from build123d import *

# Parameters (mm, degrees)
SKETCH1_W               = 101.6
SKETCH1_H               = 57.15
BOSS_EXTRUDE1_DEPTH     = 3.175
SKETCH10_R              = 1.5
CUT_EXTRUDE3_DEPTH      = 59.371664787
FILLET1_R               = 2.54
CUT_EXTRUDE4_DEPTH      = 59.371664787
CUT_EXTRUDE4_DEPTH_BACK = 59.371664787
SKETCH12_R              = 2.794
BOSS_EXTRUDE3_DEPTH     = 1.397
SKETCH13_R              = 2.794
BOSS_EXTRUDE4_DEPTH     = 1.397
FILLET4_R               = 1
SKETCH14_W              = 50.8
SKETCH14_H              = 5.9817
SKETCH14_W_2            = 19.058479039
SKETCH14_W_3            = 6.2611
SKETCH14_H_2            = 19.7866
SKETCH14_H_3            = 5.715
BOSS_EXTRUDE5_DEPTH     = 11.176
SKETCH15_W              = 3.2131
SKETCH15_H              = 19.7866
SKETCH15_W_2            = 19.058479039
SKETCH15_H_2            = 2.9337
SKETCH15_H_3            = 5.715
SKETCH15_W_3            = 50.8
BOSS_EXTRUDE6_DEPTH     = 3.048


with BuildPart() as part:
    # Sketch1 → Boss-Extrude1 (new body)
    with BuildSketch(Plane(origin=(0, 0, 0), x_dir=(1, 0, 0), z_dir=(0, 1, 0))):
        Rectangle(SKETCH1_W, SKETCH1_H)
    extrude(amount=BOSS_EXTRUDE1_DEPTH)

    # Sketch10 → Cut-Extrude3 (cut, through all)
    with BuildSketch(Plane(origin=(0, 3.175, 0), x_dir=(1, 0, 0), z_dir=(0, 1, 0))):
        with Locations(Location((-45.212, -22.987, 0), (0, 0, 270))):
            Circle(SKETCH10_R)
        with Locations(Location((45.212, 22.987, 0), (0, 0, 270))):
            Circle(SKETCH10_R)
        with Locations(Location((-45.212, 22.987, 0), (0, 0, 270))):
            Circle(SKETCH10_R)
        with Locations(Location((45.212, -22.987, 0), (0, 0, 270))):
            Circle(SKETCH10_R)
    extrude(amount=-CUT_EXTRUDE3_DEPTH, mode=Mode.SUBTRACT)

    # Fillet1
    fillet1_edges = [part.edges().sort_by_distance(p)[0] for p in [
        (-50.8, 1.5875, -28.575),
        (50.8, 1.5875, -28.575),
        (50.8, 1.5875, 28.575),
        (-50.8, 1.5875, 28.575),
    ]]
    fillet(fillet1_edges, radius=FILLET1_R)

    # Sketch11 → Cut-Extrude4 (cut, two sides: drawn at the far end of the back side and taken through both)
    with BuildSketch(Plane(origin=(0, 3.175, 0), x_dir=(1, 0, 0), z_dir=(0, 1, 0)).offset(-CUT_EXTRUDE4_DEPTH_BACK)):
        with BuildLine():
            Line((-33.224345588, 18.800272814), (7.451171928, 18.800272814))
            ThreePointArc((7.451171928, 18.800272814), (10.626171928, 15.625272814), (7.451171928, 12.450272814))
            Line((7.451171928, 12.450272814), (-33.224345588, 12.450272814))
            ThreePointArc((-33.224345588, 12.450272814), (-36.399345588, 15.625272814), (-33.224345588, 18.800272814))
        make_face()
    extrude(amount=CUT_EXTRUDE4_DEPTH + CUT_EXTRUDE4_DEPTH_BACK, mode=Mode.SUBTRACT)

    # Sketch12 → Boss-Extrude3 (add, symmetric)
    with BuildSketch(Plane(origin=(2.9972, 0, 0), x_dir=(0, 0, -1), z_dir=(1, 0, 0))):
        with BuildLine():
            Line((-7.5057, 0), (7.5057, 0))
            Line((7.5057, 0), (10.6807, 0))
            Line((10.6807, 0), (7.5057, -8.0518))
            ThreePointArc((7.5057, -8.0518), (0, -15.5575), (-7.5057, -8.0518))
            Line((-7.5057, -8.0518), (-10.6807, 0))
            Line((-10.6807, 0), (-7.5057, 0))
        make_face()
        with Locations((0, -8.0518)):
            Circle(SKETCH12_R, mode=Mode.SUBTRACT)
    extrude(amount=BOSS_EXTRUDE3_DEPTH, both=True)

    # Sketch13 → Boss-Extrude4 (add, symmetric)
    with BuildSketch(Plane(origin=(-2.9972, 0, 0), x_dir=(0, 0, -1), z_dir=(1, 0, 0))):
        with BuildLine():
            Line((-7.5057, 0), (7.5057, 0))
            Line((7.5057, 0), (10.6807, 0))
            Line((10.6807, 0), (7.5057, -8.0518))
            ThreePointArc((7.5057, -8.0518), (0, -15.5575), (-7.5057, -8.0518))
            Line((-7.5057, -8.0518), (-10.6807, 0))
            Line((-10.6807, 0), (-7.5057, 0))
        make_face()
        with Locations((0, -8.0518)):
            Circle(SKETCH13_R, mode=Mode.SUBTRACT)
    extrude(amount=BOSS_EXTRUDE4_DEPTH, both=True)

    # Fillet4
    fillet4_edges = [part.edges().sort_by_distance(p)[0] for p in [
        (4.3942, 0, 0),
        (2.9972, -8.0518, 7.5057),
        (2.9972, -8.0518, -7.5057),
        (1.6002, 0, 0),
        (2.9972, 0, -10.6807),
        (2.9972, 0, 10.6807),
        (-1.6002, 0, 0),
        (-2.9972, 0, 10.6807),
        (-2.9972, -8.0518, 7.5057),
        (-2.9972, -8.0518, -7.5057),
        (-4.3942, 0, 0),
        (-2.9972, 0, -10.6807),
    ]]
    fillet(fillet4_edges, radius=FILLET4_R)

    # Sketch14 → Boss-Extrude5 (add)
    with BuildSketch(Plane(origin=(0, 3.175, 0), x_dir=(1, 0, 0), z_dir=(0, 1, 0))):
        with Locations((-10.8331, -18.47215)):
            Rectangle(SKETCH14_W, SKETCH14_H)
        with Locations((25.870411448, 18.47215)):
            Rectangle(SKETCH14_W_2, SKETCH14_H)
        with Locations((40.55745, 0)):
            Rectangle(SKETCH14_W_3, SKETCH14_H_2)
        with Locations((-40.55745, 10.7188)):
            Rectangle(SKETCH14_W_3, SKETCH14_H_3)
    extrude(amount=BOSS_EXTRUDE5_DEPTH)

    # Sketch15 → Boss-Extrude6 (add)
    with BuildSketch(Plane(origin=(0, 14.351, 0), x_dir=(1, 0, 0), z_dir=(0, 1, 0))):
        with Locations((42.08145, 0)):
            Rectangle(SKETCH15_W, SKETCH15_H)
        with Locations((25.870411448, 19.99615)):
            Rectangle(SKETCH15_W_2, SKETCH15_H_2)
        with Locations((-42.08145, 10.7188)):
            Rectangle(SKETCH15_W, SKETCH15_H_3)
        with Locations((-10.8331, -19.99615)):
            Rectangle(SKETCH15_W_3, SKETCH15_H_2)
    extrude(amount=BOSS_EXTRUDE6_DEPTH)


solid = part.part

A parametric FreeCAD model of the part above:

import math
import FreeCAD as App
import Part
import Sketcher

V = App.Vector
Q = App.Units.Quantity


def edges_at(feature, points):
    """Names of the edges that pass closest to the given points."""
    edges = feature.Shape.Edges
    near = lambda p: min(range(len(edges)), key=lambda i: edges[i].distToShape(Part.Vertex(*p))[0])
    return sorted({f"Edge{near(p) + 1}" for p in points})


def add_polygon(sketch, points):
    """Adds a closed chain of lines whose ends are joined by coincident constraints."""
    first, n = sketch.GeometryCount, len(points)
    for a, b in zip(points, points[1:] + points[:1]):
        sketch.addGeometry(Part.LineSegment(App.Vector(*a, 0), App.Vector(*b, 0)), False)
    for i in range(n):
        sketch.addConstraint(Sketcher.Constraint("Coincident", first + i, 2, first + (i + 1) % n, 1))

doc = App.newDocument("Part")
body = doc.addObject("PartDesign::Body", "Body")

# Sketch on XZ plane
sketch1 = body.newObject("Sketcher::SketchObject", "Sketch")
sketch1.AttachmentSupport = (doc.getObject("XZ_Plane"), [""])
sketch1.MapMode = "FlatFace"
add_polygon(sketch1, [(-51, -29), (-51, 29), (51, 29), (51, -29)])  # lines 0-3
sketch1.addConstraint([
    Sketcher.Constraint("Vertical", 0),
    Sketcher.Constraint("Horizontal", 1),
    Sketcher.Constraint("Vertical", 2),
    Sketcher.Constraint("Horizontal", 3),
    Sketcher.Constraint("Symmetric", 0, 2, 2, 2, -1, 1),
    Sketcher.Constraint("DistanceX", 1, 1, 1, 2, Q("4 in")),
    Sketcher.Constraint("DistanceY", 0, 1, 0, 2, Q("2.25 in")),
])
pad1 = body.newObject("PartDesign::Pad", "Pad")
pad1.Profile = sketch1
pad1.Length = Q("0.125 in")
pad1.Reversed = True

# Sketch on XZ plane
sketch2 = body.newObject("Sketcher::SketchObject", "Sketch001")
sketch2.AttachmentSupport = (doc.getObject("XZ_Plane"), [""])
sketch2.MapMode = "FlatFace"
sketch2.AttachmentOffset = App.Placement(V(0, 0, -0.125 * 25.4), App.Rotation())
sketch2.addGeometry([
    Part.Circle(V(-45.2, 23, 0), V(0, 0, 1), 1.5),
    Part.Circle(V(45.2, -23, 0), V(0, 0, 1), 1.5),
    Part.Circle(V(-45.2, -23, 0), V(0, 0, 1), 1.5),
    Part.Circle(V(45.2, 23, 0), V(0, 0, 1), 1.5),
], False)
sketch2.addConstraint([
    Sketcher.Constraint("Equal", 0, 1),
    Sketcher.Constraint("Equal", 1, 2),
    Sketcher.Constraint("Equal", 2, 3),
    Sketcher.Constraint("Symmetric", 0, 3, 1, 3, -1, 1),
    Sketcher.Constraint("Symmetric", 2, 3, 3, 3, -1, 1),
    Sketcher.Constraint("Symmetric", 1, 3, 2, 3, -2),
    Sketcher.Constraint("Diameter", 0, 3.0),
    Sketcher.Constraint("DistanceX", 0, 3, -1, 1, Q("1.78 in")),
    Sketcher.Constraint("DistanceY", 1, 3, 0, 3, Q("1.81 in")),
])
pocket1 = body.newObject("PartDesign::Pocket", "Pocket")
pocket1.Profile = sketch2
pocket1.Type = "ThroughAll"
pocket1.Reversed = True
doc.recompute()

fillet = body.newObject("PartDesign::Fillet", "Fillet")
fillet.Base = (pocket1, edges_at(pocket1, [
    (-50.8, 1.587, -28.575),
    (50.8, 1.587, -28.575),
    (50.8, 1.587, 28.575),
    (-50.8, 1.587, 28.575),
]))
fillet.Radius = Q("0.1 in")

# Sketch on XZ plane
sketch3 = body.newObject("Sketcher::SketchObject", "Sketch002")
sketch3.AttachmentSupport = (doc.getObject("XZ_Plane"), [""])
sketch3.MapMode = "FlatFace"
sketch3.AttachmentOffset = App.Placement(V(0, 0, -0.125 * 25.4), App.Rotation())
sketch3.addGeometry([
    Part.LineSegment(V(7.5, -18.8, 0), V(-33.2, -18.8, 0)),
    Part.ArcOfCircle(Part.Circle(V(-33.2, -15.6, 0), V(0, 0, 1), 3.2), math.radians(90), math.radians(270)),
    Part.LineSegment(V(-33.2, -12.5, 0), V(7.5, -12.5, 0)),
    Part.ArcOfCircle(Part.Circle(V(7.5, -15.6, 0), V(0, 0, 1), 3.2), math.radians(-90), math.radians(90)),
], False)
sketch3.addConstraint([
    Sketcher.Constraint("Tangent", 0, 2, 1, 2),
    Sketcher.Constraint("Tangent", 1, 1, 2, 1),
    Sketcher.Constraint("Tangent", 2, 2, 3, 2),
    Sketcher.Constraint("Tangent", 3, 1, 0, 1),
    Sketcher.Constraint("Horizontal", 0),
    Sketcher.Constraint("Horizontal", 2),
    Sketcher.Constraint("Radius", 1, Q("0.125 in")),
    Sketcher.Constraint("DistanceX", 0, 2, 0, 1, 40.675518),
    Sketcher.Constraint("DistanceX", -1, 1, 3, 3, 7.451172),
    Sketcher.Constraint("DistanceY", 1, 3, -1, 1, 15.625273),
])
pocket2 = body.newObject("PartDesign::Pocket", "Pocket001")
pocket2.Profile = sketch3
pocket2.Type = "ThroughAll"
pocket2.Midplane = True

# Sketch on YZ plane
sketch4 = body.newObject("Sketcher::SketchObject", "Sketch003")
sketch4.AttachmentSupport = (doc.getObject("YZ_Plane"), [""])
sketch4.MapMode = "FlatFace"
sketch4.AttachmentOffset = App.Placement(V(0, 0, 0.118 * 25.4), App.Rotation())
sketch4.addGeometry([
    Part.LineSegment(V(-8.1, -7.5, 0), V(0, -10.7, 0)),  # 0
    Part.LineSegment(V(0, -10.7, 0), V(0, 10.7, 0)),  # 1
    Part.LineSegment(V(0, 10.7, 0), V(-8.1, 7.5, 0)),  # 2
    Part.ArcOfCircle(Part.Circle(V(-8.1, 0, 0), V(0, 0, 1), 7.5), math.radians(90), math.radians(270)),  # 3
    Part.Circle(V(-8.1, 0, 0), V(0, 0, 1), 2.8),  # 4
], False)
sketch4.addConstraint([
    Sketcher.Constraint("Coincident", 0, 2, 1, 1),
    Sketcher.Constraint("Coincident", 1, 2, 2, 1),
    Sketcher.Constraint("Coincident", 2, 2, 3, 1),
    Sketcher.Constraint("Coincident", 3, 2, 0, 1),
    Sketcher.Constraint("Vertical", 1),
    Sketcher.Constraint("Coincident", 4, 3, 3, 3),
    Sketcher.Constraint("Symmetric", 0, 2, 1, 2, -1, 1),
    Sketcher.Constraint("Symmetric", 2, 2, 3, 2, -1),
    Sketcher.Constraint("Vertical", 4, 3, 2, 2),
    Sketcher.Constraint("Diameter", 4, Q("0.22 in")),
    Sketcher.Constraint("Radius", 3, Q("0.2955 in")),
    Sketcher.Constraint("DistanceY", 1, 1, 1, 2, Q("0.841 in")),
    Sketcher.Constraint("DistanceX", 3, 3, -1, 1, Q("0.317 in")),
])
pad2 = body.newObject("PartDesign::Pad", "Pad001")
pad2.Profile = sketch4
pad2.Length = Q("0.11 in")
pad2.Midplane = True

# Sketch on YZ plane
sketch5 = body.newObject("Sketcher::SketchObject", "Sketch004")
sketch5.AttachmentSupport = (doc.getObject("YZ_Plane"), [""])
sketch5.MapMode = "FlatFace"
sketch5.AttachmentOffset = App.Placement(V(0, 0, -0.118 * 25.4), App.Rotation())
sketch5.addGeometry([
    Part.LineSegment(V(-8.1, -7.5, 0), V(0, -10.7, 0)),  # 0
    Part.LineSegment(V(0, -10.7, 0), V(0, 10.7, 0)),  # 1
    Part.LineSegment(V(0, 10.7, 0), V(-8.1, 7.5, 0)),  # 2
    Part.ArcOfCircle(Part.Circle(V(-8.1, 0, 0), V(0, 0, 1), 7.5), math.radians(90), math.radians(270)),  # 3
    Part.Circle(V(-8.1, 0, 0), V(0, 0, 1), 2.8),  # 4
], False)
sketch5.addConstraint([
    Sketcher.Constraint("Coincident", 0, 2, 1, 1),
    Sketcher.Constraint("Coincident", 1, 2, 2, 1),
    Sketcher.Constraint("Coincident", 2, 2, 3, 1),
    Sketcher.Constraint("Coincident", 3, 2, 0, 1),
    Sketcher.Constraint("Vertical", 1),
    Sketcher.Constraint("Coincident", 4, 3, 3, 3),
    Sketcher.Constraint("Symmetric", 0, 2, 1, 2, -1, 1),
    Sketcher.Constraint("Symmetric", 2, 2, 3, 2, -1),
    Sketcher.Constraint("Vertical", 4, 3, 2, 2),
    Sketcher.Constraint("Diameter", 4, Q("0.22 in")),
    Sketcher.Constraint("Radius", 3, Q("0.2955 in")),
    Sketcher.Constraint("DistanceY", 1, 1, 1, 2, Q("0.841 in")),
    Sketcher.Constraint("DistanceX", 3, 3, -1, 1, Q("0.317 in")),
])
pad3 = body.newObject("PartDesign::Pad", "Pad002")
pad3.Profile = sketch5
pad3.Length = Q("0.11 in")
pad3.Midplane = True
doc.recompute()

fillet2 = body.newObject("PartDesign::Fillet", "Fillet001")
fillet2.Base = (pad3, edges_at(pad3, [
    (4.394, 0, 0),
    (2.997, -8.052, 7.506),
    (2.997, -8.052, -7.506),
    (1.6, 0, 0),
    (2.997, 0, -10.681),
    (2.997, 0, 10.681),
    (-1.6, 0, 0),
    (-2.997, 0, 10.681),
    (-2.997, -8.052, 7.506),
    (-2.997, -8.052, -7.506),
    (-4.394, 0, 0),
    (-2.997, 0, -10.681),
]))
fillet2.Radius = 1

# Sketch on XZ plane
sketch6 = body.newObject("Sketcher::SketchObject", "Sketch005")
sketch6.AttachmentSupport = (doc.getObject("XZ_Plane"), [""])
sketch6.MapMode = "FlatFace"
sketch6.AttachmentOffset = App.Placement(V(0, 0, -0.125 * 25.4), App.Rotation())
add_polygon(sketch6, [(-36, 15), (-36, 21), (15, 21), (15, 15)])  # lines 0-3
add_polygon(sketch6, [(16, -21), (16, -15), (35, -15), (35, -21)])  # lines 4-7
add_polygon(sketch6, [(37, -10), (37, 10), (44, 10), (44, -10)])  # lines 8-11
add_polygon(sketch6, [(-44, -14), (-44, -8), (-37, -8), (-37, -14)])  # lines 12-15
sketch6.addConstraint([
    Sketcher.Constraint("Vertical", 0),
    Sketcher.Constraint("Horizontal", 1),
    Sketcher.Constraint("Vertical", 2),
    Sketcher.Constraint("Horizontal", 3),
    Sketcher.Constraint("Vertical", 4),
    Sketcher.Constraint("Horizontal", 5),
    Sketcher.Constraint("Vertical", 6),
    Sketcher.Constraint("Horizontal", 7),
    Sketcher.Constraint("Vertical", 8),
    Sketcher.Constraint("Horizontal", 9),
    Sketcher.Constraint("Vertical", 10),
    Sketcher.Constraint("Horizontal", 11),
    Sketcher.Constraint("Vertical", 12),
    Sketcher.Constraint("Horizontal", 13),
    Sketcher.Constraint("Vertical", 14),
    Sketcher.Constraint("Horizontal", 15),
    Sketcher.Constraint("Equal", 11, 13),
    Sketcher.Constraint("Equal", 2, 4),
    Sketcher.Constraint("DistanceX", 1, 1, 1, 2, Q("2 in")),
    Sketcher.Constraint("DistanceX", 2, 2, 8, 2, Q("0.9 in")),
    Sketcher.Constraint("DistanceY", 4, 2, 12, 2, Q("0.3 in")),
    Sketcher.Constraint("DistanceY", 8, 1, 8, 2, Q("0.779 in")),
    Sketcher.Constraint("DistanceY", 12, 1, 12, 2, Q("0.225 in")),
    Sketcher.Constraint("DistanceX", -1, 1, 9, 2, Q("1.72 in")),
    Sketcher.Constraint("DistanceX", 12, 2, -1, 1, Q("1.72 in")),
    Sketcher.Constraint("DistanceY", 6, 2, 1, 2, Q("1.69 in")),
    Sketcher.Constraint("DistanceY", 8, 2, 2, 2, Q("0.22 in")),
    Sketcher.Constraint("DistanceY", 5, 2, 10, 2, Q("0.22 in")),
    Sketcher.Constraint("DistanceX", 9, 1, 9, 2, Q("0.2465 in")),
    Sketcher.Constraint("DistanceY", -1, 1, 0, 2, Q("0.845 in")),
    Sketcher.Constraint("DistanceX", 5, 1, 5, 2, 19.058479),
    Sketcher.Constraint("DistanceX", -1, 1, 4, 2, 16.341172),
])
pad4 = body.newObject("PartDesign::Pad", "Pad003")
pad4.Profile = sketch6
pad4.Length = Q("0.44 in")
pad4.Reversed = True

# Sketch on XZ plane
sketch7 = body.newObject("Sketcher::SketchObject", "Sketch006")
sketch7.AttachmentSupport = (doc.getObject("XZ_Plane"), [""])
sketch7.MapMode = "FlatFace"
sketch7.AttachmentOffset = App.Placement(V(0, 0, -0.565 * 25.4), App.Rotation())
add_polygon(sketch7, [(40.5, -9.9), (40.5, 9.9), (43.7, 9.9), (43.7, -9.9)])  # lines 0-3
add_polygon(sketch7, [(16.3, -21.5), (16.3, -18.5), (35.4, -18.5), (35.4, -21.5)])  # lines 4-7
add_polygon(sketch7, [(-43.7, -13.6), (-43.7, -7.9), (-40.5, -7.9), (-40.5, -13.6)])  # lines 8-11
add_polygon(sketch7, [(-36.2, 18.5), (-36.2, 21.5), (14.6, 21.5), (14.6, 18.5)])  # lines 12-15
sketch7.addConstraint([
    Sketcher.Constraint("Vertical", 0),
    Sketcher.Constraint("Horizontal", 1),
    Sketcher.Constraint("Vertical", 2),
    Sketcher.Constraint("Horizontal", 3),
    Sketcher.Constraint("Vertical", 4),
    Sketcher.Constraint("Horizontal", 5),
    Sketcher.Constraint("Vertical", 6),
    Sketcher.Constraint("Horizontal", 7),
    Sketcher.Constraint("Vertical", 8),
    Sketcher.Constraint("Horizontal", 9),
    Sketcher.Constraint("Vertical", 10),
    Sketcher.Constraint("Horizontal", 11),
    Sketcher.Constraint("Vertical", 12),
    Sketcher.Constraint("Horizontal", 13),
    Sketcher.Constraint("Vertical", 14),
    Sketcher.Constraint("Horizontal", 15),
    Sketcher.Constraint("Equal", 3, 9),
    Sketcher.Constraint("Equal", 6, 12),
    Sketcher.Constraint("DistanceX", 13, 1, 13, 2, Q("2 in")),
    Sketcher.Constraint("DistanceY", 0, 1, 0, 2, Q("0.779 in")),
    Sketcher.Constraint("DistanceY", 8, 1, 8, 2, Q("0.225 in")),
    Sketcher.Constraint("DistanceX", -1, 1, 1, 2, Q("1.72 in")),
    Sketcher.Constraint("DistanceX", 8, 2, -1, 1, Q("1.72 in")),
    Sketcher.Constraint("DistanceY", 4, 2, 3, 2, Q("0.34 in")),
    Sketcher.Constraint("DistanceY", 4, 2, 8, 2, Q("0.42 in")),
    Sketcher.Constraint("DistanceX", 13, 2, 0, 2, Q("1.02 in")),
    Sketcher.Constraint("DistanceY", 0, 2, 14, 2, Q("0.34 in")),
    Sketcher.Constraint("DistanceX", 1, 1, 1, 2, Q("0.1265 in")),
    Sketcher.Constraint("DistanceY", 4, 1, 4, 2, Q("0.1155 in")),
    Sketcher.Constraint("DistanceY", 6, 2, -1, 1, Q("0.845 in")),
    Sketcher.Constraint("DistanceX", 5, 1, 5, 2, 19.058479),
    Sketcher.Constraint("DistanceX", -1, 1, 4, 2, 16.341172),
])
pad5 = body.newObject("PartDesign::Pad", "Pad004")
pad5.Profile = sketch7
pad5.Length = Q("0.12 in")
pad5.Reversed = True

doc.recompute()
